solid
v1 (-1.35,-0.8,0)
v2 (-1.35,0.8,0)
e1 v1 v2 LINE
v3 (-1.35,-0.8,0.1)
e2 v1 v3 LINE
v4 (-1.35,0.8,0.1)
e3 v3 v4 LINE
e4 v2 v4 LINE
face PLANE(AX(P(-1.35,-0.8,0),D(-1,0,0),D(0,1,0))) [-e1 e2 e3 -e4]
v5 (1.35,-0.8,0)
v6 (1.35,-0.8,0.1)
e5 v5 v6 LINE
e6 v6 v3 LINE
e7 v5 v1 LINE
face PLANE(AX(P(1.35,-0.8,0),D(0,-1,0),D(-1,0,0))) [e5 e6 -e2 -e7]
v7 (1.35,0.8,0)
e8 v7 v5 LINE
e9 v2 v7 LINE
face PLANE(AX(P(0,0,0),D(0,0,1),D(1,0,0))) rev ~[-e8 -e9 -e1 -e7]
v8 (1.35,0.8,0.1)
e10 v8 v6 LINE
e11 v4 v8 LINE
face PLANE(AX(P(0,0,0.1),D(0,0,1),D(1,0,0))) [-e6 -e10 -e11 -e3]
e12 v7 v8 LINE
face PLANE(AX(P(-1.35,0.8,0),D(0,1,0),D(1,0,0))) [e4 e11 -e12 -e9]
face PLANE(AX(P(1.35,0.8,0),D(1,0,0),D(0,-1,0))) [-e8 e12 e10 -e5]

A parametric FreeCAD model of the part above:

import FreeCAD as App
import Part
import Sketcher
from FreeCAD import Vector

doc = App.newDocument("Part")
body = doc.addObject("PartDesign::Body", "Body")

# Sketch on XY plane
sketch1 = body.newObject("Sketcher::SketchObject", "Sketch")
sketch1.AttachmentSupport = (doc.getObject("XY_Plane"), [""])
sketch1.MapMode = "FlatFace"
sketch1.addGeometry([
    Part.LineSegment(Vector(1.4, -0.8, 0), Vector(1.4, 0.8, 0)),
    Part.LineSegment(Vector(1.4, 0.8, 0), Vector(-1.4, 0.8, 0)),
    Part.LineSegment(Vector(-1.4, 0.8, 0), Vector(-1.4, -0.8, 0)),
    Part.LineSegment(Vector(-1.4, -0.8, 0), Vector(1.4, -0.8, 0)),
], False)
sketch1.addConstraint([
    Sketcher.Constraint("Coincident", 0, 2, 1, 1),
    Sketcher.Constraint("Coincident", 1, 2, 2, 1),
    Sketcher.Constraint("Coincident", 2, 2, 3, 1),
    Sketcher.Constraint("Coincident", 3, 2, 0, 1),
    Sketcher.Constraint("Vertical", 0),
    Sketcher.Constraint("Horizontal", 1),
    Sketcher.Constraint("Vertical", 2),
    Sketcher.Constraint("Horizontal", 3),
    Sketcher.Constraint("Symmetric", 0, 2, 2, 2, -1, 1),
    Sketcher.Constraint("DistanceX", 1, 2, 1, 1, 2.7),
    Sketcher.Constraint("DistanceY", 0, 1, 0, 2, 1.6),
])
pad1 = body.newObject("PartDesign::Pad", "Pad")
pad1.Profile = sketch1
pad1.Length = 0.1

doc.recompute()
